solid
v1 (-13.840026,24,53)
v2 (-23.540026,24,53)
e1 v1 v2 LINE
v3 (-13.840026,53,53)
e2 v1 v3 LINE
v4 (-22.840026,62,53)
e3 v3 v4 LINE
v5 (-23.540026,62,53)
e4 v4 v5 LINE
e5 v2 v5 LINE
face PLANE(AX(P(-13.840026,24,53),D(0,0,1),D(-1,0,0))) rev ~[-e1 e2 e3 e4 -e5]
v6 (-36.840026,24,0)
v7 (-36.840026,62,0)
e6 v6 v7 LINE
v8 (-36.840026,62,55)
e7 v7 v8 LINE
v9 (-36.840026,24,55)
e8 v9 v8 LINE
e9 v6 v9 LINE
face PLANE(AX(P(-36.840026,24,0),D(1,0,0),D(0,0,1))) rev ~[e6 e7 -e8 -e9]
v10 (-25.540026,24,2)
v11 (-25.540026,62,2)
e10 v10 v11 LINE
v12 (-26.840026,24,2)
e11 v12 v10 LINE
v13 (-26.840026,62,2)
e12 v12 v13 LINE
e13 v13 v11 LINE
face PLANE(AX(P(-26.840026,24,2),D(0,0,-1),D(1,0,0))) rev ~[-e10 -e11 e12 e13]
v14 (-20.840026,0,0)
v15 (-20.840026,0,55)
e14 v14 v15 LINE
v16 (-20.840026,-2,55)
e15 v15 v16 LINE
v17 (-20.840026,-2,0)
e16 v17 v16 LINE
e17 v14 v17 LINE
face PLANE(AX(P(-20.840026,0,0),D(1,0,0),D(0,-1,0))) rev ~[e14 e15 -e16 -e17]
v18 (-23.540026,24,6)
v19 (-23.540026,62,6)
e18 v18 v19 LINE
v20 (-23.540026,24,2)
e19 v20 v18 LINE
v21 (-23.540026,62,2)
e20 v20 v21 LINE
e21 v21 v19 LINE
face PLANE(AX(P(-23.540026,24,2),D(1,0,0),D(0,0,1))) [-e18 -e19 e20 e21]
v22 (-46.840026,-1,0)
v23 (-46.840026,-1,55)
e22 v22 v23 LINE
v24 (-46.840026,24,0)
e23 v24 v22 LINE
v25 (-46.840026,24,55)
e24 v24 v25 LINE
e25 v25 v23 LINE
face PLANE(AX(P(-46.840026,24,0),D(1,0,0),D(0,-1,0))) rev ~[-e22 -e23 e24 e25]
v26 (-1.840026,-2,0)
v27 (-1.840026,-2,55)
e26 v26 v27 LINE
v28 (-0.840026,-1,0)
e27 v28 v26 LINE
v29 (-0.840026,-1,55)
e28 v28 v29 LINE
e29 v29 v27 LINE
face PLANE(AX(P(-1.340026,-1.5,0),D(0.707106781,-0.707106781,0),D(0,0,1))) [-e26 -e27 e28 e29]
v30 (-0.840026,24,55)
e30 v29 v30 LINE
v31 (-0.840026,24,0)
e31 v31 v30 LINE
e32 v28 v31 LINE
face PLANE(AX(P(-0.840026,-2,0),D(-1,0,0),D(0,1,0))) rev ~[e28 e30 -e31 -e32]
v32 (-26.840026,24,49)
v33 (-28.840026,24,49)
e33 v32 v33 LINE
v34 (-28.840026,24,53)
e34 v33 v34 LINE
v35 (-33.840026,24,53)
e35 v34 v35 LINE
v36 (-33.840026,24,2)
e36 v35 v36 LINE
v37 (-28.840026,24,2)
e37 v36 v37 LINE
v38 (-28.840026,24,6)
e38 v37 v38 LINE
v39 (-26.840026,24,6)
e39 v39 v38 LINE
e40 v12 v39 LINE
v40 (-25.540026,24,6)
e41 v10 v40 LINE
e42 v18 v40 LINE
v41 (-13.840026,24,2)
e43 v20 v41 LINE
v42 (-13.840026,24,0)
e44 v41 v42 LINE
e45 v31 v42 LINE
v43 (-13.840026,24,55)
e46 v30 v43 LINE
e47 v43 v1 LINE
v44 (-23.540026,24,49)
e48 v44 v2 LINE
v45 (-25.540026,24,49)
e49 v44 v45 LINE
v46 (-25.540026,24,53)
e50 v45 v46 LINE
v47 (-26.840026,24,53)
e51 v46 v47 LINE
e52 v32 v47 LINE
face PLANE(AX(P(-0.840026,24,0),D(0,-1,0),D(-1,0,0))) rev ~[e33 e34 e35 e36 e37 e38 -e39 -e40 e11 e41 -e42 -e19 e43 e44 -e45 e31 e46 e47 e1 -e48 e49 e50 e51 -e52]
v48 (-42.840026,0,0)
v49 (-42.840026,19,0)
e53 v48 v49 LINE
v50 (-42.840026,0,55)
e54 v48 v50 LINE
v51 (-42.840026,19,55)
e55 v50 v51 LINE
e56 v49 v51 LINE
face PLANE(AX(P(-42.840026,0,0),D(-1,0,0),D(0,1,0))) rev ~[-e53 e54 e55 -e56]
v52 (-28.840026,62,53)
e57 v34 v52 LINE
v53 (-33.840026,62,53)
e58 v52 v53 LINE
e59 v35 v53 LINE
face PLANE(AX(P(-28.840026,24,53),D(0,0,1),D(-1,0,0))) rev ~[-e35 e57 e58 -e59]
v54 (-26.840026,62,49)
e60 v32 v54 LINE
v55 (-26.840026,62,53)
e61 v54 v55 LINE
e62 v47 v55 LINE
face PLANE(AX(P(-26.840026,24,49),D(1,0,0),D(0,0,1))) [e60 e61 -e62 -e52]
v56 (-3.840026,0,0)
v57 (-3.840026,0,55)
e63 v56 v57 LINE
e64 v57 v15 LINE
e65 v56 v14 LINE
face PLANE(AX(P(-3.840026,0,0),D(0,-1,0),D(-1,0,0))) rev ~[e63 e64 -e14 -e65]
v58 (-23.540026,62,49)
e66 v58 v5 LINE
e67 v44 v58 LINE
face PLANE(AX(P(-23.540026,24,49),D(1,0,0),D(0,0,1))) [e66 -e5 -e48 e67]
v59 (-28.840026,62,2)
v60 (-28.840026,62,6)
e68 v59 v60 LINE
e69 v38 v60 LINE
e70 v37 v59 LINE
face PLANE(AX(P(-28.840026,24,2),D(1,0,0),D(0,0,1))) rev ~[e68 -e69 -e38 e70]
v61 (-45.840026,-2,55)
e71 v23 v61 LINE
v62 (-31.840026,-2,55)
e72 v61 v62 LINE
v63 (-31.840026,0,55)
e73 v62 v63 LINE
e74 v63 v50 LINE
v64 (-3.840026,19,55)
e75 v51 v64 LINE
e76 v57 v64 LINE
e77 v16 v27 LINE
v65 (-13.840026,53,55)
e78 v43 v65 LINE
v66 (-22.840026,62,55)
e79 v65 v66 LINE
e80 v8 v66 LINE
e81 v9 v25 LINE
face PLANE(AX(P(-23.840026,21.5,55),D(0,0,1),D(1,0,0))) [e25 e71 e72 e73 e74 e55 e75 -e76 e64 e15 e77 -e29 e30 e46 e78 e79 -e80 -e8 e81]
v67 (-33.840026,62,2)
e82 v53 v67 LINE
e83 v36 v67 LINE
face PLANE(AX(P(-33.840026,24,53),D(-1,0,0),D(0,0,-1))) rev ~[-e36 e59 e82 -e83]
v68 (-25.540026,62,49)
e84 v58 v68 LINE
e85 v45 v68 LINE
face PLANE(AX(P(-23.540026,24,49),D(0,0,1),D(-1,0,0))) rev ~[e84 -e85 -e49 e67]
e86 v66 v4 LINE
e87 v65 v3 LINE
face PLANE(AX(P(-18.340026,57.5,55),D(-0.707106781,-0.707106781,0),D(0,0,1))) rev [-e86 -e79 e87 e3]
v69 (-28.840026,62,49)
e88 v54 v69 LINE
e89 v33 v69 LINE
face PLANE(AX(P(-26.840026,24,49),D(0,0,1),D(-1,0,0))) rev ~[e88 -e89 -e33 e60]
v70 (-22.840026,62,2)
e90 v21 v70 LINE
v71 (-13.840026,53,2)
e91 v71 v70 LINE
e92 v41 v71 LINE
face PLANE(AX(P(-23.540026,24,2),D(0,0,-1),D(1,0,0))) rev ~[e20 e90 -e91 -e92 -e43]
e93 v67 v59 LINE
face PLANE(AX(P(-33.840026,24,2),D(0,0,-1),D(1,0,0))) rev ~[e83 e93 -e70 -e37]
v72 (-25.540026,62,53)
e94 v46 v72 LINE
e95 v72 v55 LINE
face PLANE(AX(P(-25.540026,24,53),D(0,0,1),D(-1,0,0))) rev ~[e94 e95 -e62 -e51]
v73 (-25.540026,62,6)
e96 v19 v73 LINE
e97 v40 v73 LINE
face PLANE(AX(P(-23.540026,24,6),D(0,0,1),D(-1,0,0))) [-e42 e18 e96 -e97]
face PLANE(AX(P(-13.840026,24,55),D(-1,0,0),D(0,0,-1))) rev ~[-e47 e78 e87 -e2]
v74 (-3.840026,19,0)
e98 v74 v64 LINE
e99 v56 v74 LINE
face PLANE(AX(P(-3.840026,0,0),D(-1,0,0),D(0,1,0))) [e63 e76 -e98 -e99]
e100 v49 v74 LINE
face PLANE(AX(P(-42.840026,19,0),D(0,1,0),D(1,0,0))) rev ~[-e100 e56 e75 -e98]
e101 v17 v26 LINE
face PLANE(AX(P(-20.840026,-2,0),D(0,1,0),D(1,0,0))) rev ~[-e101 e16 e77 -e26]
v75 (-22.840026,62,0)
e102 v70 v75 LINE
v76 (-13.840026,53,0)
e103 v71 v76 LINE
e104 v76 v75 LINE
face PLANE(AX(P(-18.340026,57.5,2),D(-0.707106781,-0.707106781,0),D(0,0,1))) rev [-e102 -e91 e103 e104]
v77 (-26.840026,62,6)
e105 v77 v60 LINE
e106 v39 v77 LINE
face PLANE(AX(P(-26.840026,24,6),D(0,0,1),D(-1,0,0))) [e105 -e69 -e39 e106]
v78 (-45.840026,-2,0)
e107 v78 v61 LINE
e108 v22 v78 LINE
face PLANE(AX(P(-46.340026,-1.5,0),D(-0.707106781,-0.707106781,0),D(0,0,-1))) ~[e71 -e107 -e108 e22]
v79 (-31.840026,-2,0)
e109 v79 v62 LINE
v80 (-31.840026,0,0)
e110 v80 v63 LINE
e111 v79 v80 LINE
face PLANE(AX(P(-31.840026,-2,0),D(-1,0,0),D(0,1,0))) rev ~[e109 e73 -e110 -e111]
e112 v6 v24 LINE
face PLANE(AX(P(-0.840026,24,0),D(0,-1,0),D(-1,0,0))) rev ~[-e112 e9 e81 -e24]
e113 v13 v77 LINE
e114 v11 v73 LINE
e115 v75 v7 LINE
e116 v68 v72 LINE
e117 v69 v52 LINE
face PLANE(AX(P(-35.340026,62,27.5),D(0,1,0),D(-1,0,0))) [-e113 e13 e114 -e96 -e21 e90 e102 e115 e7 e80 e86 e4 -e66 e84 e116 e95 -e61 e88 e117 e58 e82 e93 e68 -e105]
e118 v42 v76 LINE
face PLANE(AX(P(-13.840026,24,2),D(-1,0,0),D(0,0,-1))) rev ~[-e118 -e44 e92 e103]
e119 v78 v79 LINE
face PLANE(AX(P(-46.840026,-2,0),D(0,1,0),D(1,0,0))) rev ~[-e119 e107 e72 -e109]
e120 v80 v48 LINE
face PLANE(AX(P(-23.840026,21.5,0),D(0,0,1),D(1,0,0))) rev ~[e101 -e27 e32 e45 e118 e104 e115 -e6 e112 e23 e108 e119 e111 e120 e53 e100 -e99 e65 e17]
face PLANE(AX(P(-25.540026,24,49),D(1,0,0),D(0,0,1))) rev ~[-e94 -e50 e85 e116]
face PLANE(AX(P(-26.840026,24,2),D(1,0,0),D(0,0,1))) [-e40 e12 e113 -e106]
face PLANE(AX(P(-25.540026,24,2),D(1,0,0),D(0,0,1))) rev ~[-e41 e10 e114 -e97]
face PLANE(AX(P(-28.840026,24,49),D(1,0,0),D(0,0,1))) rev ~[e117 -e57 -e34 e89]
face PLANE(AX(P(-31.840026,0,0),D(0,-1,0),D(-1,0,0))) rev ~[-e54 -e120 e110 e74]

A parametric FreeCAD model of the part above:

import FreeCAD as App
import Part
import Sketcher


def edges_at(feature, points):
    """Names of the edges that pass closest to the given points."""
    edges = feature.Shape.Edges
    near = lambda p: min(range(len(edges)), key=lambda i: edges[i].distToShape(Part.Vertex(*p))[0])
    return sorted({f"Edge{near(p) + 1}" for p in points})

doc = App.newDocument("Part")
body = doc.addObject("PartDesign::Body", "Body")

sketch1 = doc.addObject("Sketcher::SketchObject", "Sketch")
body.addObject(sketch1)
sketch1.AttachmentSupport = (doc.XY_Plane, [""])
sketch1.MapMode = "FlatFace"
sketch1.addGeometry([
    Part.LineSegment(App.Vector(-0.8, 24, 0), App.Vector(-46.8, 24, 0)),
    Part.LineSegment(App.Vector(-46.8, 24, 0), App.Vector(-46.8, -2, 0)),
    Part.LineSegment(App.Vector(-46.8, -2, 0), App.Vector(-31.8, -2, 0)),
    Part.LineSegment(App.Vector(-31.8, -2, 0), App.Vector(-31.8, 0, 0)),
    Part.LineSegment(App.Vector(-31.8, 0, 0), App.Vector(-42.8, 0, 0)),
    Part.LineSegment(App.Vector(-42.8, 0, 0), App.Vector(-42.8, 19, 0)),
    Part.LineSegment(App.Vector(-42.8, 19, 0), App.Vector(-3.8, 19, 0)),
    Part.LineSegment(App.Vector(-3.8, 19, 0), App.Vector(-3.8, 0, 0)),
    Part.LineSegment(App.Vector(-3.8, 0, 0), App.Vector(-20.8, 0, 0)),
    Part.LineSegment(App.Vector(-20.8, 0, 0), App.Vector(-20.8, -2, 0)),
    Part.LineSegment(App.Vector(-20.8, -2, 0), App.Vector(-0.8, -2, 0)),
    Part.LineSegment(App.Vector(-0.8, -2, 0), App.Vector(-0.8, 24, 0)),
], False)
sketch1.addConstraint([
    Sketcher.Constraint("Coincident", 0, 2, 1, 1),
    Sketcher.Constraint("Coincident", 1, 2, 2, 1),
    Sketcher.Constraint("Coincident", 2, 2, 3, 1),
    Sketcher.Constraint("Coincident", 3, 2, 4, 1),
    Sketcher.Constraint("Coincident", 4, 2, 5, 1),
    Sketcher.Constraint("Coincident", 5, 2, 6, 1),
    Sketcher.Constraint("Coincident", 6, 2, 7, 1),
    Sketcher.Constraint("Coincident", 7, 2, 8, 1),
    Sketcher.Constraint("Coincident", 8, 2, 9, 1),
    Sketcher.Constraint("Coincident", 9, 2, 10, 1),
    Sketcher.Constraint("Coincident", 10, 2, 11, 1),
    Sketcher.Constraint("Coincident", 11, 2, 0, 1),
    Sketcher.Constraint("Horizontal", 0),
    Sketcher.Constraint("Vertical", 1),
    Sketcher.Constraint("Horizontal", 2),
    Sketcher.Constraint("Vertical", 3),
    Sketcher.Constraint("Horizontal", 4),
    Sketcher.Constraint("Vertical", 5),
    Sketcher.Constraint("Horizontal", 6),
    Sketcher.Constraint("Vertical", 7),
    Sketcher.Constraint("Horizontal", 8),
    Sketcher.Constraint("Vertical", 9),
    Sketcher.Constraint("Horizontal", 10),
    Sketcher.Constraint("Vertical", 11),
    Sketcher.Constraint("PointOnObject", 3, 2, -1),
    Sketcher.Constraint("PointOnObject", 7, 2, -1),
    Sketcher.Constraint("Horizontal", 2, 2, 9, 2),
    Sketcher.Constraint("DistanceX", 0, 2, 0, 1, 46.0),
    Sketcher.Constraint("DistanceX", 2, 1, 2, 2, 15.0),
    Sketcher.Constraint("DistanceX", 4, 2, 4, 1, 11.0),
    Sketcher.Constraint("DistanceX", 6, 1, 6, 2, 39.0),
    Sketcher.Constraint("DistanceX", 8, 2, 8, 1, 17.0),
    Sketcher.Constraint("DistanceY", 1, 2, 1, 1, 26.0),
    Sketcher.Constraint("DistanceY", 3, 1, 3, 2, 2.0),
    Sketcher.Constraint("DistanceY", 5, 1, 5, 2, 19.0),
    Sketcher.Constraint("DistanceX", 0, 2, -1, 1, 46.840026),
])
pad1 = doc.addObject("PartDesign::Pad", "Pad")
body.addObject(pad1)
pad1.Profile = sketch1
pad1.Length = 55

sketch2 = doc.addObject("Sketcher::SketchObject", "Sketch001")
body.addObject(sketch2)
sketch2.AttachmentSupport = (doc.XZ_Plane, [""])
sketch2.MapMode = "FlatFace"
sketch2.AttachmentOffset = App.Placement(App.Vector(0, 0, -24), App.Rotation())
sketch2.addGeometry([
    Part.LineSegment(App.Vector(-36.8, 55, 0), App.Vector(-13.8, 55, 0)),
    Part.LineSegment(App.Vector(-13.8, 55, 0), App.Vector(-13.8, 53, 0)),
    Part.LineSegment(App.Vector(-13.8, 53, 0), App.Vector(-23.5, 53, 0)),
    Part.LineSegment(App.Vector(-23.5, 53, 0), App.Vector(-23.5, 49, 0)),
    Part.LineSegment(App.Vector(-23.5, 49, 0), App.Vector(-25.5, 49, 0)),
    Part.LineSegment(App.Vector(-25.5, 49, 0), App.Vector(-25.5, 53, 0)),
    Part.LineSegment(App.Vector(-25.5, 53, 0), App.Vector(-26.8, 53, 0)),
    Part.LineSegment(App.Vector(-26.8, 53, 0), App.Vector(-26.8, 49, 0)),
    Part.LineSegment(App.Vector(-26.8, 49, 0), App.Vector(-28.8, 49, 0)),
    Part.LineSegment(App.Vector(-28.8, 49, 0), App.Vector(-28.8, 53, 0)),
    Part.LineSegment(App.Vector(-28.8, 53, 0), App.Vector(-33.8, 53, 0)),
    Part.LineSegment(App.Vector(-33.8, 53, 0), App.Vector(-33.8, 2, 0)),
    Part.LineSegment(App.Vector(-33.8, 2, 0), App.Vector(-28.8, 2, 0)),
    Part.LineSegment(App.Vector(-28.8, 2, 0), App.Vector(-28.8, 6, 0)),
    Part.LineSegment(App.Vector(-28.8, 6, 0), App.Vector(-26.8, 6, 0)),
    Part.LineSegment(App.Vector(-26.8, 6, 0), App.Vector(-26.8, 2, 0)),
    Part.LineSegment(App.Vector(-26.8, 2, 0), App.Vector(-25.5, 2, 0)),
    Part.LineSegment(App.Vector(-25.5, 2, 0), App.Vector(-25.5, 6, 0)),
    Part.LineSegment(App.Vector(-25.5, 6, 0), App.Vector(-23.5, 6, 0)),
    Part.LineSegment(App.Vector(-23.5, 6, 0), App.Vector(-23.5, 2, 0)),
    Part.LineSegment(App.Vector(-23.5, 2, 0), App.Vector(-13.8, 2, 0)),
    Part.LineSegment(App.Vector(-13.8, 2, 0), App.Vector(-13.8, 0, 0)),
    Part.LineSegment(App.Vector(-13.8, 0, 0), App.Vector(-36.8, 0, 0)),
    Part.LineSegment(App.Vector(-36.8, 0, 0), App.Vector(-36.8, 55, 0)),
], False)
sketch2.addConstraint([
    Sketcher.Constraint("Coincident", 0, 2, 1, 1),
    Sketcher.Constraint("Coincident", 1, 2, 2, 1),
    Sketcher.Constraint("Coincident", 2, 2, 3, 1),
    Sketcher.Constraint("Coincident", 3, 2, 4, 1),
    Sketcher.Constraint("Coincident", 4, 2, 5, 1),
    Sketcher.Constraint("Coincident", 5, 2, 6, 1),
    Sketcher.Constraint("Coincident", 6, 2, 7, 1),
    Sketcher.Constraint("Coincident", 7, 2, 8, 1),
    Sketcher.Constraint("Coincident", 8, 2, 9, 1),
    Sketcher.Constraint("Coincident", 9, 2, 10, 1),
    Sketcher.Constraint("Coincident", 10, 2, 11, 1),
    Sketcher.Constraint("Coincident", 11, 2, 12, 1),
    Sketcher.Constraint("Coincident", 12, 2, 13, 1),
    Sketcher.Constraint("Coincident", 13, 2, 14, 1),
    Sketcher.Constraint("Coincident", 14, 2, 15, 1),
    Sketcher.Constraint("Coincident", 15, 2, 16, 1),
    Sketcher.Constraint("Coincident", 16, 2, 17, 1),
    Sketcher.Constraint("Coincident", 17, 2, 18, 1),
    Sketcher.Constraint("Coincident", 18, 2, 19, 1),
    Sketcher.Constraint("Coincident", 19, 2, 20, 1),
    Sketcher.Constraint("Coincident", 20, 2, 21, 1),
    Sketcher.Constraint("Coincident", 21, 2, 22, 1),
    Sketcher.Constraint("Coincident", 22, 2, 23, 1),
    Sketcher.Constraint("Coincident", 23, 2, 0, 1),
    Sketcher.Constraint("Horizontal", 0),
    Sketcher.Constraint("Vertical", 1),
    Sketcher.Constraint("Horizontal", 2),
    Sketcher.Constraint("Vertical", 3),
    Sketcher.Constraint("Horizontal", 4),
    Sketcher.Constraint("Vertical", 5),
    Sketcher.Constraint("Horizontal", 6),
    Sketcher.Constraint("Vertical", 7),
    Sketcher.Constraint("Horizontal", 8),
    Sketcher.Constraint("Vertical", 9),
    Sketcher.Constraint("Horizontal", 10),
    Sketcher.Constraint("Vertical", 11),
    Sketcher.Constraint("Horizontal", 12),
    Sketcher.Constraint("Vertical", 13),
    Sketcher.Constraint("Horizontal", 14),
    Sketcher.Constraint("Vertical", 15),
    Sketcher.Constraint("Horizontal", 16),
    Sketcher.Constraint("Vertical", 17),
    Sketcher.Constraint("Horizontal", 18),
    Sketcher.Constraint("Vertical", 19),
    Sketcher.Constraint("Horizontal", 20),
    Sketcher.Constraint("Vertical", 21),
    Sketcher.Constraint("Horizontal", 22),
    Sketcher.Constraint("Vertical", 23),
    Sketcher.Constraint("PointOnObject", 21, 2, -1),
    Sketcher.Constraint("Horizontal", 2, 2, 5, 2),
    Sketcher.Constraint("Horizontal", 4, 2, 7, 2),
    Sketcher.Constraint("Horizontal", 6, 2, 9, 2),
    Sketcher.Constraint("Horizontal", 12, 2, 15, 2),
    Sketcher.Constraint("Horizontal", 14, 2, 17, 2),
    Sketcher.Constraint("Horizontal", 16, 2, 19, 2),
    Sketcher.Constraint("Vertical", 9, 2, 12, 2),
    Sketcher.Constraint("Vertical", 7, 2, 14, 2),
    Sketcher.Constraint("Vertical", 5, 2, 16, 2),
    Sketcher.Constraint("Vertical", 3, 2, 18, 2),
    Sketcher.Constraint("Vertical", 1, 2, 20, 2),
    Sketcher.Constraint("Equal", 4, 8),
    Sketcher.Constraint("Equal", 18, 1),
    Sketcher.Constraint("Equal", 9, 13),
    Sketcher.Constraint("Equal", 1, 21),
    Sketcher.Constraint("DistanceX", 0, 1, 0, 2, 23.0),
    Sketcher.Constraint("DistanceX", 4, 2, 4, 1, 2.0),
    Sketcher.Constraint("DistanceX", 10, 2, 10, 1, 5.0),
    Sketcher.Constraint("DistanceY", 3, 2, 3, 1, 4.0),
    Sketcher.Constraint("DistanceY", 11, 2, 11, 1, 51.0),
    Sketcher.Constraint("DistanceX", 2, 2, 2, 1, 9.7),
    Sketcher.Constraint("DistanceX", 6, 2, 6, 1, 1.3),
    Sketcher.Constraint("DistanceX", 0, 2, -1, 1, 13.840026),
])
pad2 = doc.addObject("PartDesign::Pad", "Pad001")
body.addObject(pad2)
pad2.Profile = sketch2
pad2.Length = 38
pad2.Reversed = True
doc.recompute()

chamfer = doc.addObject("PartDesign::Chamfer", "Chamfer")
body.addObject(chamfer)
chamfer.Base = (pad2, edges_at(pad2, [(-13.84, 62, 54), (-13.84, 62, 1)]))
chamfer.Size = 9
doc.recompute()

chamfer2 = doc.addObject("PartDesign::Chamfer", "Chamfer001")
body.addObject(chamfer2)
chamfer2.Base = (chamfer, edges_at(chamfer, [(-0.84, -2, 27.5), (-46.84, -2, 27.5)]))
chamfer2.Size = 1

doc.recompute()
